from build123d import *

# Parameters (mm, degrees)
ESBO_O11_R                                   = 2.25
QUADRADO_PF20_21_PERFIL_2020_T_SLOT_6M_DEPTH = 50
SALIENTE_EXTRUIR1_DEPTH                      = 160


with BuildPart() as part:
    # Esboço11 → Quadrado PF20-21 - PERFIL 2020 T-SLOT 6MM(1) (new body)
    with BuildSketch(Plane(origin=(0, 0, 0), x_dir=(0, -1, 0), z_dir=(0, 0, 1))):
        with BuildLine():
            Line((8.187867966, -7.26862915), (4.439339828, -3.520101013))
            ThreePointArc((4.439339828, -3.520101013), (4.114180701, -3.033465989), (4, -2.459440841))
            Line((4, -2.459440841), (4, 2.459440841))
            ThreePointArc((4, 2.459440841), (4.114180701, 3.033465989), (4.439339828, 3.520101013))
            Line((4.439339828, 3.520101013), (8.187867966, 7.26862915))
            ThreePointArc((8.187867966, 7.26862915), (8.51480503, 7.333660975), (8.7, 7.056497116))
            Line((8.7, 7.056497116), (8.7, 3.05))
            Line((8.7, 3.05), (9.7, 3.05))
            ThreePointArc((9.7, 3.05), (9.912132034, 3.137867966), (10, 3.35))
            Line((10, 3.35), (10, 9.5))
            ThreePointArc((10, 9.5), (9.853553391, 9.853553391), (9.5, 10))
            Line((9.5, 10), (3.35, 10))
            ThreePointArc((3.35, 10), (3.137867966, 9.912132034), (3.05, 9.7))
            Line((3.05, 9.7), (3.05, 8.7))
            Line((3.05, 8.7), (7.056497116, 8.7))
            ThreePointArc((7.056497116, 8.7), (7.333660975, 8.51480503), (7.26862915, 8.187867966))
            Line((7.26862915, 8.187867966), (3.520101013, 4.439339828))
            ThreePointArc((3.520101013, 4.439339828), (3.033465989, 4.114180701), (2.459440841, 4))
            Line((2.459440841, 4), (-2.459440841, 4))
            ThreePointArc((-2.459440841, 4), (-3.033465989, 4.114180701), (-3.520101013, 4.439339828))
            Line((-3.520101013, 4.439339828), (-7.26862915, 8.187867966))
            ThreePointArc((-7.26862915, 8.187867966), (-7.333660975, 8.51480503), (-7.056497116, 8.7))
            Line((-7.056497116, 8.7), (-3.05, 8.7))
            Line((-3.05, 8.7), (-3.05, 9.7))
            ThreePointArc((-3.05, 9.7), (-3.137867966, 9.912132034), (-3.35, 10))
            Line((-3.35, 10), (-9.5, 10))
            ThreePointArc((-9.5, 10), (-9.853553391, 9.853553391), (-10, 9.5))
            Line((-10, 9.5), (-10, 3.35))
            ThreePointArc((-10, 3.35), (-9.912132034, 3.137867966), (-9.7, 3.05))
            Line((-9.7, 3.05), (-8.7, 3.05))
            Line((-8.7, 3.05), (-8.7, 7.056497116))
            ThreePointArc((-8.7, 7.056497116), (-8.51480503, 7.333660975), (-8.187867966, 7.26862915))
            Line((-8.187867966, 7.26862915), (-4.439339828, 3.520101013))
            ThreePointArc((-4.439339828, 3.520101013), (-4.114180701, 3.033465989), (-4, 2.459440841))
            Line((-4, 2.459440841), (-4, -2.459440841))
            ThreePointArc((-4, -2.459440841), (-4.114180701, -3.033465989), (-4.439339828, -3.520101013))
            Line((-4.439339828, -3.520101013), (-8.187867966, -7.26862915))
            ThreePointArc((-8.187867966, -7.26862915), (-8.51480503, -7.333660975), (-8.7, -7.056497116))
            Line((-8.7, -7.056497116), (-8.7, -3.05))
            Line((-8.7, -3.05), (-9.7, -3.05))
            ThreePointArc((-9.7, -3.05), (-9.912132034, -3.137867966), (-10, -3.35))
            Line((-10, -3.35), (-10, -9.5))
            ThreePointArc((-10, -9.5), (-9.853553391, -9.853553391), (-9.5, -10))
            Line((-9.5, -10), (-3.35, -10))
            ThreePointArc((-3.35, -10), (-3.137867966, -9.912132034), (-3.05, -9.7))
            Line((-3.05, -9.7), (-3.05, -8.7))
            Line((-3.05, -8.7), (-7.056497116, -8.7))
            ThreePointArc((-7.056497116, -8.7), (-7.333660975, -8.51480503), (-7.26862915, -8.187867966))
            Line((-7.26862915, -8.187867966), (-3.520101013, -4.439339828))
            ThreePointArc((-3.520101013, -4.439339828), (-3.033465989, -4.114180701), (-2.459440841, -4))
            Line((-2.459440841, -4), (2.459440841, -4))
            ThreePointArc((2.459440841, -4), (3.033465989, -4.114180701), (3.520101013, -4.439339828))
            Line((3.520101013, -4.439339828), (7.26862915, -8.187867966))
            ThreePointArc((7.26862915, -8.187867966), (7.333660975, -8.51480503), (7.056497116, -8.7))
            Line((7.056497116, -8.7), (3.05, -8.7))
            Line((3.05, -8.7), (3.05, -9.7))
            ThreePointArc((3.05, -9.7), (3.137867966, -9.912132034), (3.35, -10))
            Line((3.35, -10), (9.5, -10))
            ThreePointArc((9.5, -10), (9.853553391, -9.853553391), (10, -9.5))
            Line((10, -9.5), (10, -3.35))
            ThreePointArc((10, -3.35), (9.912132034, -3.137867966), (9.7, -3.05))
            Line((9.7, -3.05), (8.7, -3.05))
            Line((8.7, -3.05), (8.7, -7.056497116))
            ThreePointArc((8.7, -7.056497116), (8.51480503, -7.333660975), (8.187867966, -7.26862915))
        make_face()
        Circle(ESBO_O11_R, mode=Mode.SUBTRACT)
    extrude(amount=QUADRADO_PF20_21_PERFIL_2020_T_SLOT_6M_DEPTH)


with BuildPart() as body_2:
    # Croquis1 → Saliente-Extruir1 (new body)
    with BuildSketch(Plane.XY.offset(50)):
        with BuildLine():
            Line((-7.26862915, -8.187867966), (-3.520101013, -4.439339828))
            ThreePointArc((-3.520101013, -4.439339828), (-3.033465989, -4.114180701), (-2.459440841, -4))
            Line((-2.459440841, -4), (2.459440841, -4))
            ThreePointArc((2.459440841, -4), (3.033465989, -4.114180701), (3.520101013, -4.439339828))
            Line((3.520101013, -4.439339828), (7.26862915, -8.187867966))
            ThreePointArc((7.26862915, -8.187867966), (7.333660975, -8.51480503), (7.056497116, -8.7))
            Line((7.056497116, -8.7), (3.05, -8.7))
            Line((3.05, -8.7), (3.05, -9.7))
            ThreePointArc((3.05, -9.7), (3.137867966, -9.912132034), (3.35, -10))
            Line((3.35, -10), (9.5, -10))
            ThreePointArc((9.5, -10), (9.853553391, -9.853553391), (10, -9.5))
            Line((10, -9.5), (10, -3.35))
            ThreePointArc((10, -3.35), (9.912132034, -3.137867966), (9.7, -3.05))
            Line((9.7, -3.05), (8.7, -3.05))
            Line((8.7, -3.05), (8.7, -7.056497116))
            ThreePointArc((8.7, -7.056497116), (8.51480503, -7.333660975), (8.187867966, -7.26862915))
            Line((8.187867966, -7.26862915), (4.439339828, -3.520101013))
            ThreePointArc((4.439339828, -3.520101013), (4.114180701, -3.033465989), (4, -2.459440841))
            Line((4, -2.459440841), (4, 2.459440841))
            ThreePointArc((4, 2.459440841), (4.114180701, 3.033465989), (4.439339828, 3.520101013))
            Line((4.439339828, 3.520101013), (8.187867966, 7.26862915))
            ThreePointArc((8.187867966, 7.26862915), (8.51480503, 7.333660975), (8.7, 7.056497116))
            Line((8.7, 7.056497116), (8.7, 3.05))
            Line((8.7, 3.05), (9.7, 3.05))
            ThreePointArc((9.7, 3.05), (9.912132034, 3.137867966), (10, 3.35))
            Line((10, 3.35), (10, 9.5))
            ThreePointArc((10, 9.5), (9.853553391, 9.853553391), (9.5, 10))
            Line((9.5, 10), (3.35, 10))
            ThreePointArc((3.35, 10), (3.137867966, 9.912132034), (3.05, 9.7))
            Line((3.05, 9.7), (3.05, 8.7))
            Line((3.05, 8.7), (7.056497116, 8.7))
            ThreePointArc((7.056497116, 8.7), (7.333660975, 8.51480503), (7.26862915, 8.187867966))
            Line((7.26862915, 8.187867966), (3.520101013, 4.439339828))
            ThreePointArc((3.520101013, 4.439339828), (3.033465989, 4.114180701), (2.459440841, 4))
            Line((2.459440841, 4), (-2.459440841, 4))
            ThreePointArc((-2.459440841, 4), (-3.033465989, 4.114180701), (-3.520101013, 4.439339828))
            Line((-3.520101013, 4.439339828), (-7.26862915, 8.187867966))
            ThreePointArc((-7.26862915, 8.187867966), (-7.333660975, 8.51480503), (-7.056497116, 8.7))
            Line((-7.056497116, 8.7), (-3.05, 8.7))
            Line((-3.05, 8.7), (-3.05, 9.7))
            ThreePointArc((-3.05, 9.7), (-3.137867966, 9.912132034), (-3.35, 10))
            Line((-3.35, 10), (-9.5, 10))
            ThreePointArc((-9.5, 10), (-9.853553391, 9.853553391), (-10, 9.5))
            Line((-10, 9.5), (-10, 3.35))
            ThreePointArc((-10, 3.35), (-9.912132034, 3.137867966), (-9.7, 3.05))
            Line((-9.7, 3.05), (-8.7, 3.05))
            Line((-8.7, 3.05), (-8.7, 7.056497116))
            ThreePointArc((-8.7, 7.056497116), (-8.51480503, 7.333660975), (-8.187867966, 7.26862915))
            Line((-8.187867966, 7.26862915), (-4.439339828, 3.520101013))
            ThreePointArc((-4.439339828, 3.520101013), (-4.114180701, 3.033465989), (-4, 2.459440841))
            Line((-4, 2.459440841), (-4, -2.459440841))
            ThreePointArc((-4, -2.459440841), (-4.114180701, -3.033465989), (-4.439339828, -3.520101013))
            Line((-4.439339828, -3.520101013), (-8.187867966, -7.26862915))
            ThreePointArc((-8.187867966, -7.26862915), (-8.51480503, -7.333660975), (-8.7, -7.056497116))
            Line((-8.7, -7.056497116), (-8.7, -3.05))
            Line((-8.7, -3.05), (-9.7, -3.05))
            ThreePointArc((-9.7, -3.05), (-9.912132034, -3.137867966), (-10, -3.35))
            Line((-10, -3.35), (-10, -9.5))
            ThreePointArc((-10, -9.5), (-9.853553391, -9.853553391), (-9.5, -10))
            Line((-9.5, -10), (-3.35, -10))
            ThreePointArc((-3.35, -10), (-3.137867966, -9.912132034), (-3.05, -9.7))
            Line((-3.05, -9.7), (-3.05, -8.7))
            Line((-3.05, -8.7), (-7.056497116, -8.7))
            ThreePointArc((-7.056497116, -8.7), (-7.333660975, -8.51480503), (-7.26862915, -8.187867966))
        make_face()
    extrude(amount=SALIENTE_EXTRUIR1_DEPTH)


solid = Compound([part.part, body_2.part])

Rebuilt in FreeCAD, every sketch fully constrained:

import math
import FreeCAD as App
import Part
import Sketcher
Q = App.Units.Quantity

doc = App.newDocument("Part")
body = doc.addObject("PartDesign::Body", "Body")

sketch1 = body.newObject("Sketcher::SketchObject", "Sketch")
sketch1.AttachmentSupport = (doc.getObject("XY_Plane"), [""])
sketch1.MapMode = "FlatFace"
sketch1.addGeometry(Part.LineSegment(App.Vector(-7.27, -8.19, 0), App.Vector(-3.52, -4.44, 0)), False)
sketch1.addGeometry(Part.ArcOfCircle(Part.Circle(App.Vector(-2.46, -5.5, 0), App.Vector(0, 0, 1), 1.5), math.radians(90), math.radians(135)), False)
sketch1.addGeometry(Part.LineSegment(App.Vector(-2.46, -4, 0), App.Vector(2.46, -4, 0)), False)
sketch1.addGeometry(Part.ArcOfCircle(Part.Circle(App.Vector(2.46, -5.5, 0), App.Vector(0, 0, 1), 1.5), math.radians(45), math.radians(90)), False)
sketch1.addGeometry(Part.LineSegment(App.Vector(3.52, -4.44, 0), App.Vector(7.27, -8.19, 0)), False)
sketch1.addGeometry(Part.ArcOfCircle(Part.Circle(App.Vector(7.06, -8.4, 0), App.Vector(0, 0, 1), 0.3), math.radians(-90), math.radians(45)), False)
sketch1.addGeometry(Part.LineSegment(App.Vector(7.06, -8.7, 0), App.Vector(3.05, -8.7, 0)), False)
sketch1.addGeometry(Part.LineSegment(App.Vector(3.05, -8.7, 0), App.Vector(3.05, -9.7, 0)), False)
sketch1.addGeometry(Part.ArcOfCircle(Part.Circle(App.Vector(3.35, -9.7, 0), App.Vector(0, 0, 1), 0.3), math.radians(-180), math.radians(-90)), False)
sketch1.addGeometry(Part.LineSegment(App.Vector(3.35, -10, 0), App.Vector(9.5, -10, 0)), False)
sketch1.addGeometry(Part.ArcOfCircle(Part.Circle(App.Vector(9.5, -9.5, 0), App.Vector(0, 0, 1), 0.5), math.radians(-90), math.radians(0)), False)
sketch1.addGeometry(Part.LineSegment(App.Vector(10, -9.5, 0), App.Vector(10, -3.35, 0)), False)
sketch1.addGeometry(Part.ArcOfCircle(Part.Circle(App.Vector(9.7, -3.35, 0), App.Vector(0, 0, 1), 0.3), math.radians(0), math.radians(90)), False)
sketch1.addGeometry(Part.LineSegment(App.Vector(9.7, -3.05, 0), App.Vector(8.7, -3.05, 0)), False)
sketch1.addGeometry(Part.LineSegment(App.Vector(8.7, -3.05, 0), App.Vector(8.7, -7.06, 0)), False)
sketch1.addGeometry(Part.ArcOfCircle(Part.Circle(App.Vector(8.4, -7.06, 0), App.Vector(0, 0, 1), 0.3), math.radians(-135), math.radians(0)), False)
sketch1.addGeometry(Part.LineSegment(App.Vector(8.19, -7.27, 0), App.Vector(4.44, -3.52, 0)), False)
sketch1.addGeometry(Part.ArcOfCircle(Part.Circle(App.Vector(5.5, -2.46, 0), App.Vector(0, 0, 1), 1.5), math.radians(180), math.radians(225)), False)
sketch1.addGeometry(Part.LineSegment(App.Vector(4, -2.46, 0), App.Vector(4, 2.46, 0)), False)
sketch1.addGeometry(Part.ArcOfCircle(Part.Circle(App.Vector(5.5, 2.46, 0), App.Vector(0, 0, 1), 1.5), math.radians(135), math.radians(180)), False)
sketch1.addGeometry(Part.LineSegment(App.Vector(4.44, 3.52, 0), App.Vector(8.19, 7.27, 0)), False)
sketch1.addGeometry(Part.ArcOfCircle(Part.Circle(App.Vector(8.4, 7.06, 0), App.Vector(0, 0, 1), 0.3), math.radians(0), math.radians(135)), False)
sketch1.addGeometry(Part.LineSegment(App.Vector(8.7, 7.06, 0), App.Vector(8.7, 3.05, 0)), False)
sketch1.addGeometry(Part.LineSegment(App.Vector(8.7, 3.05, 0), App.Vector(9.7, 3.05, 0)), False)
sketch1.addGeometry(Part.ArcOfCircle(Part.Circle(App.Vector(9.7, 3.35, 0), App.Vector(0, 0, 1), 0.3), math.radians(-90), math.radians(0)), False)
sketch1.addGeometry(Part.LineSegment(App.Vector(10, 3.35, 0), App.Vector(10, 9.5, 0)), False)
sketch1.addGeometry(Part.ArcOfCircle(Part.Circle(App.Vector(9.5, 9.5, 0), App.Vector(0, 0, 1), 0.5), math.radians(0), math.radians(90)), False)
sketch1.addGeometry(Part.LineSegment(App.Vector(9.5, 10, 0), App.Vector(3.35, 10, 0)), False)
sketch1.addGeometry(Part.ArcOfCircle(Part.Circle(App.Vector(3.35, 9.7, 0), App.Vector(0, 0, 1), 0.3), math.radians(90), math.radians(180)), False)
sketch1.addGeometry(Part.LineSegment(App.Vector(3.05, 9.7, 0), App.Vector(3.05, 8.7, 0)), False)
sketch1.addGeometry(Part.LineSegment(App.Vector(3.05, 8.7, 0), App.Vector(7.06, 8.7, 0)), False)
sketch1.addGeometry(Part.ArcOfCircle(Part.Circle(App.Vector(7.06, 8.4, 0), App.Vector(0, 0, 1), 0.3), math.radians(-45), math.radians(90)), False)
sketch1.addGeometry(Part.LineSegment(App.Vector(7.27, 8.19, 0), App.Vector(3.52, 4.44, 0)), False)
sketch1.addGeometry(Part.ArcOfCircle(Part.Circle(App.Vector(2.46, 5.5, 0), App.Vector(0, 0, 1), 1.5), math.radians(-90), math.radians(-45)), False)
sketch1.addGeometry(Part.LineSegment(App.Vector(2.46, 4, 0), App.Vector(-2.46, 4, 0)), False)
sketch1.addGeometry(Part.ArcOfCircle(Part.Circle(App.Vector(-2.46, 5.5, 0), App.Vector(0, 0, 1), 1.5), math.radians(-135), math.radians(-90)), False)
sketch1.addGeometry(Part.LineSegment(App.Vector(-3.52, 4.44, 0), App.Vector(-7.27, 8.19, 0)), False)
sketch1.addGeometry(Part.ArcOfCircle(Part.Circle(App.Vector(-7.06, 8.4, 0), App.Vector(0, 0, 1), 0.3), math.radians(90), math.radians(225)), False)
sketch1.addGeometry(Part.LineSegment(App.Vector(-7.06, 8.7, 0), App.Vector(-3.05, 8.7, 0)), False)
sketch1.addGeometry(Part.LineSegment(App.Vector(-3.05, 8.7, 0), App.Vector(-3.05, 9.7, 0)), False)
sketch1.addGeometry(Part.ArcOfCircle(Part.Circle(App.Vector(-3.35, 9.7, 0), App.Vector(0, 0, 1), 0.3), math.radians(0), math.radians(90)), False)
sketch1.addGeometry(Part.LineSegment(App.Vector(-3.35, 10, 0), App.Vector(-9.5, 10, 0)), False)
sketch1.addGeometry(Part.ArcOfCircle(Part.Circle(App.Vector(-9.5, 9.5, 0), App.Vector(0, 0, 1), 0.5), math.radians(90), math.radians(180)), False)
sketch1.addGeometry(Part.LineSegment(App.Vector(-10, 9.5, 0), App.Vector(-10, 3.35, 0)), False)
sketch1.addGeometry(Part.ArcOfCircle(Part.Circle(App.Vector(-9.7, 3.35, 0), App.Vector(0, 0, 1), 0.3), math.radians(-180), math.radians(-90)), False)
sketch1.addGeometry(Part.LineSegment(App.Vector(-9.7, 3.05, 0), App.Vector(-8.7, 3.05, 0)), False)
sketch1.addGeometry(Part.LineSegment(App.Vector(-8.7, 3.05, 0), App.Vector(-8.7, 7.06, 0)), False)
sketch1.addGeometry(Part.ArcOfCircle(Part.Circle(App.Vector(-8.4, 7.06, 0), App.Vector(0, 0, 1), 0.3), math.radians(45), math.radians(180)), False)
sketch1.addGeometry(Part.LineSegment(App.Vector(-8.19, 7.27, 0), App.Vector(-4.44, 3.52, 0)), False)
sketch1.addGeometry(Part.ArcOfCircle(Part.Circle(App.Vector(-5.5, 2.46, 0), App.Vector(0, 0, 1), 1.5), math.radians(0), math.radians(45)), False)
sketch1.addGeometry(Part.LineSegment(App.Vector(-4, 2.46, 0), App.Vector(-4, -2.46, 0)), False)
sketch1.addGeometry(Part.ArcOfCircle(Part.Circle(App.Vector(-5.5, -2.46, 0), App.Vector(0, 0, 1), 1.5), math.radians(-45), math.radians(0)), False)
sketch1.addGeometry(Part.LineSegment(App.Vector(-4.44, -3.52, 0), App.Vector(-8.19, -7.27, 0)), False)
sketch1.addGeometry(Part.ArcOfCircle(Part.Circle(App.Vector(-8.4, -7.06, 0), App.Vector(0, 0, 1), 0.3), math.radians(-180), math.radians(-45)), False)
sketch1.addGeometry(Part.LineSegment(App.Vector(-8.7, -7.06, 0), App.Vector(-8.7, -3.05, 0)), False)
sketch1.addGeometry(Part.LineSegment(App.Vector(-8.7, -3.05, 0), App.Vector(-9.7, -3.05, 0)), False)
sketch1.addGeometry(Part.ArcOfCircle(Part.Circle(App.Vector(-9.7, -3.35, 0), App.Vector(0, 0, 1), 0.3), math.radians(90), math.radians(180)), False)
sketch1.addGeometry(Part.LineSegment(App.Vector(-10, -3.35, 0), App.Vector(-10, -9.5, 0)), False)
sketch1.addGeometry(Part.ArcOfCircle(Part.Circle(App.Vector(-9.5, -9.5, 0), App.Vector(0, 0, 1), 0.5), math.radians(180), math.radians(270)), False)
sketch1.addGeometry(Part.LineSegment(App.Vector(-9.5, -10, 0), App.Vector(-3.35, -10, 0)), False)
sketch1.addGeometry(Part.ArcOfCircle(Part.Circle(App.Vector(-3.35, -9.7, 0), App.Vector(0, 0, 1), 0.3), math.radians(-90), math.radians(0)), False)
sketch1.addGeometry(Part.LineSegment(App.Vector(-3.05, -9.7, 0), App.Vector(-3.05, -8.7, 0)), False)
sketch1.addGeometry(Part.LineSegment(App.Vector(-3.05, -8.7, 0), App.Vector(-7.06, -8.7, 0)), False)
sketch1.addGeometry(Part.ArcOfCircle(Part.Circle(App.Vector(-7.06, -8.4, 0), App.Vector(0, 0, 1), 0.3), math.radians(135), math.radians(270)), False)
sketch1.addGeometry(Part.Circle(App.Vector(0, 0, 0), App.Vector(0, 0, 1), 2.25), False)
sketch1.addConstraint(Sketcher.Constraint("Tangent", 0, 2, 1, 2))
sketch1.addConstraint(Sketcher.Constraint("Tangent", 1, 1, 2, 1))
sketch1.addConstraint(Sketcher.Constraint("Tangent", 2, 2, 3, 2))
sketch1.addConstraint(Sketcher.Constraint("Tangent", 3, 1, 4, 1))
sketch1.addConstraint(Sketcher.Constraint("Tangent", 4, 2, 5, 2))
sketch1.addConstraint(Sketcher.Constraint("Tangent", 5, 1, 6, 1))
sketch1.addConstraint(Sketcher.Constraint("Coincident", 6, 2, 7, 1))
sketch1.addConstraint(Sketcher.Constraint("Tangent", 7, 2, 8, 1))
sketch1.addConstraint(Sketcher.Constraint("Tangent", 8, 2, 9, 1))
sketch1.addConstraint(Sketcher.Constraint("Tangent", 9, 2, 10, 1))
sketch1.addConstraint(Sketcher.Constraint("Tangent", 10, 2, 11, 1))
sketch1.addConstraint(Sketcher.Constraint("Tangent", 11, 2, 12, 1))
sketch1.addConstraint(Sketcher.Constraint("Tangent", 12, 2, 13, 1))
sketch1.addConstraint(Sketcher.Constraint("Coincident", 13, 2, 14, 1))
sketch1.addConstraint(Sketcher.Constraint("Tangent", 14, 2, 15, 2))
sketch1.addConstraint(Sketcher.Constraint("Tangent", 15, 1, 16, 1))
sketch1.addConstraint(Sketcher.Constraint("Tangent", 16, 2, 17, 2))
sketch1.addConstraint(Sketcher.Constraint("Tangent", 17, 1, 18, 1))
sketch1.addConstraint(Sketcher.Constraint("Tangent", 18, 2, 19, 2))
sketch1.addConstraint(Sketcher.Constraint("Tangent", 19, 1, 20, 1))
sketch1.addConstraint(Sketcher.Constraint("Tangent", 20, 2, 21, 2))
sketch1.addConstraint(Sketcher.Constraint("Tangent", 21, 1, 22, 1))
sketch1.addConstraint(Sketcher.Constraint("Coincident", 22, 2, 23, 1))
sketch1.addConstraint(Sketcher.Constraint("Tangent", 23, 2, 24, 1))
sketch1.addConstraint(Sketcher.Constraint("Tangent", 24, 2, 25, 1))
sketch1.addConstraint(Sketcher.Constraint("Tangent", 25, 2, 26, 1))
sketch1.addConstraint(Sketcher.Constraint("Tangent", 26, 2, 27, 1))
sketch1.addConstraint(Sketcher.Constraint("Tangent", 27, 2, 28, 1))
sketch1.addConstraint(Sketcher.Constraint("Tangent", 28, 2, 29, 1))
sketch1.addConstraint(Sketcher.Constraint("Coincident", 29, 2, 30, 1))
sketch1.addConstraint(Sketcher.Constraint("Tangent", 30, 2, 31, 2))
sketch1.addConstraint(Sketcher.Constraint("Tangent", 31, 1, 32, 1))
sketch1.addConstraint(Sketcher.Constraint("Tangent", 32, 2, 33, 2))
sketch1.addConstraint(Sketcher.Constraint("Tangent", 33, 1, 34, 1))
sketch1.addConstraint(Sketcher.Constraint("Tangent", 34, 2, 35, 2))
sketch1.addConstraint(Sketcher.Constraint("Tangent", 35, 1, 36, 1))
sketch1.addConstraint(Sketcher.Constraint("Tangent", 36, 2, 37, 2))
sketch1.addConstraint(Sketcher.Constraint("Tangent", 37, 1, 38, 1))
sketch1.addConstraint(Sketcher.Constraint("Coincident", 38, 2, 39, 1))
sketch1.addConstraint(Sketcher.Constraint("Tangent", 39, 2, 40, 1))
sketch1.addConstraint(Sketcher.Constraint("Tangent", 40, 2, 41, 1))
sketch1.addConstraint(Sketcher.Constraint("Tangent", 41, 2, 42, 1))
sketch1.addConstraint(Sketcher.Constraint("Tangent", 42, 2, 43, 1))
sketch1.addConstraint(Sketcher.Constraint("Tangent", 43, 2, 44, 1))
sketch1.addConstraint(Sketcher.Constraint("Tangent", 44, 2, 45, 1))
sketch1.addConstraint(Sketcher.Constraint("Coincident", 45, 2, 46, 1))
sketch1.addConstraint(Sketcher.Constraint("Tangent", 46, 2, 47, 2))
sketch1.addConstraint(Sketcher.Constraint("Tangent", 47, 1, 48, 1))
sketch1.addConstraint(Sketcher.Constraint("Tangent", 48, 2, 49, 2))
sketch1.addConstraint(Sketcher.Constraint("Tangent", 49, 1, 50, 1))
sketch1.addConstraint(Sketcher.Constraint("Tangent", 50, 2, 51, 2))
sketch1.addConstraint(Sketcher.Constraint("Tangent", 51, 1, 52, 1))
sketch1.addConstraint(Sketcher.Constraint("Tangent", 52, 2, 53, 2))
sketch1.addConstraint(Sketcher.Constraint("Tangent", 53, 1, 54, 1))
sketch1.addConstraint(Sketcher.Constraint("Coincident", 54, 2, 55, 1))
sketch1.addConstraint(Sketcher.Constraint("Tangent", 55, 2, 56, 1))
sketch1.addConstraint(Sketcher.Constraint("Tangent", 56, 2, 57, 1))
sketch1.addConstraint(Sketcher.Constraint("Tangent", 57, 2, 58, 1))
sketch1.addConstraint(Sketcher.Constraint("Tangent", 58, 2, 59, 1))
sketch1.addConstraint(Sketcher.Constraint("Tangent", 59, 2, 60, 1))
sketch1.addConstraint(Sketcher.Constraint("Tangent", 60, 2, 61, 1))
sketch1.addConstraint(Sketcher.Constraint("Coincident", 61, 2, 62, 1))
sketch1.addConstraint(Sketcher.Constraint("Tangent", 62, 2, 63, 2))
sketch1.addConstraint(Sketcher.Constraint("Tangent", 63, 1, 0, 1))
sketch1.addConstraint(Sketcher.Constraint("Horizontal", 2))
sketch1.addConstraint(Sketcher.Constraint("Horizontal", 6))
sketch1.addConstraint(Sketcher.Constraint("Vertical", 7))
sketch1.addConstraint(Sketcher.Constraint("Horizontal", 9))
sketch1.addConstraint(Sketcher.Constraint("Vertical", 11))
sketch1.addConstraint(Sketcher.Constraint("Horizontal", 13))
sketch1.addConstraint(Sketcher.Constraint("Vertical", 14))
sketch1.addConstraint(Sketcher.Constraint("Vertical", 18))
sketch1.addConstraint(Sketcher.Constraint("Vertical", 22))
sketch1.addConstraint(Sketcher.Constraint("Horizontal", 23))
sketch1.addConstraint(Sketcher.Constraint("Vertical", 25))
sketch1.addConstraint(Sketcher.Constraint("Horizontal", 27))
sketch1.addConstraint(Sketcher.Constraint("Vertical", 29))
sketch1.addConstraint(Sketcher.Constraint("Horizontal", 30))
sketch1.addConstraint(Sketcher.Constraint("Horizontal", 34))
sketch1.addConstraint(Sketcher.Constraint("Horizontal", 38))
sketch1.addConstraint(Sketcher.Constraint("Vertical", 39))
sketch1.addConstraint(Sketcher.Constraint("Horizontal", 41))
sketch1.addConstraint(Sketcher.Constraint("Vertical", 43))
sketch1.addConstraint(Sketcher.Constraint("Horizontal", 45))
sketch1.addConstraint(Sketcher.Constraint("Vertical", 46))
sketch1.addConstraint(Sketcher.Constraint("Vertical", 50))
sketch1.addConstraint(Sketcher.Constraint("Vertical", 54))
sketch1.addConstraint(Sketcher.Constraint("Horizontal", 55))
sketch1.addConstraint(Sketcher.Constraint("Vertical", 57))
sketch1.addConstraint(Sketcher.Constraint("Horizontal", 59))
sketch1.addConstraint(Sketcher.Constraint("Vertical", 61))
sketch1.addConstraint(Sketcher.Constraint("Horizontal", 62))
sketch1.addConstraint(Sketcher.Constraint("Coincident", 64, 3, -1, 1))
sketch1.addConstraint(Sketcher.Constraint("Equal", 1, 3))
sketch1.addConstraint(Sketcher.Constraint("Equal", 5, 8))
sketch1.addConstraint(Sketcher.Constraint("Equal", 8, 12))
sketch1.addConstraint(Sketcher.Constraint("Equal", 12, 15))
sketch1.addConstraint(Sketcher.Constraint("Equal", 3, 17))
sketch1.addConstraint(Sketcher.Constraint("Equal", 17, 19))
sketch1.addConstraint(Sketcher.Constraint("Equal", 15, 21))
sketch1.addConstraint(Sketcher.Constraint("Equal", 21, 24))
sketch1.addConstraint(Sketcher.Constraint("Equal", 10, 26))
sketch1.addConstraint(Sketcher.Constraint("Equal", 24, 28))
sketch1.addConstraint(Sketcher.Constraint("Equal", 28, 31))
sketch1.addConstraint(Sketcher.Constraint("Equal", 19, 33))
sketch1.addConstraint(Sketcher.Constraint("Equal", 33, 35))
sketch1.addConstraint(Sketcher.Constraint("Equal", 31, 37))
sketch1.addConstraint(Sketcher.Constraint("Equal", 37, 40))
sketch1.addConstraint(Sketcher.Constraint("Equal", 26, 42))
sketch1.addConstraint(Sketcher.Constraint("Equal", 40, 44))
sketch1.addConstraint(Sketcher.Constraint("Equal", 44, 47))
sketch1.addConstraint(Sketcher.Constraint("Equal", 35, 49))
sketch1.addConstraint(Sketcher.Constraint("Equal", 49, 51))
sketch1.addConstraint(Sketcher.Constraint("Equal", 47, 53))
sketch1.addConstraint(Sketcher.Constraint("Equal", 53, 56))
sketch1.addConstraint(Sketcher.Constraint("Equal", 42, 58))
sketch1.addConstraint(Sketcher.Constraint("Equal", 56, 60))
sketch1.addConstraint(Sketcher.Constraint("Equal", 60, 63))
sketch1.addConstraint(Sketcher.Constraint("Symmetric", 1, 3, 33, 3, -1, 1))
sketch1.addConstraint(Sketcher.Constraint("Symmetric", 5, 3, 37, 3, -1, 1))
sketch1.addConstraint(Sketcher.Constraint("Symmetric", 8, 3, 40, 3, -1, 1))
sketch1.addConstraint(Sketcher.Constraint("Symmetric", 12, 3, 44, 3, -1, 1))
sketch1.addConstraint(Sketcher.Constraint("Symmetric", 15, 3, 47, 3, -1, 1))
sketch1.addConstraint(Sketcher.Constraint("Symmetric", 17, 3, 49, 3, -1, 1))
sketch1.addConstraint(Sketcher.Constraint("Symmetric", 21, 3, 53, 3, -1, 1))
sketch1.addConstraint(Sketcher.Constraint("Symmetric", 24, 3, 56, 3, -1, 1))
sketch1.addConstraint(Sketcher.Constraint("Symmetric", 28, 3, 60, 3, -1, 1))
sketch1.addConstraint(Sketcher.Constraint("Symmetric", 31, 3, 63, 3, -1, 1))
sketch1.addConstraint(Sketcher.Constraint("Symmetric", 31, 3, 37, 3, -2))
sketch1.addConstraint(Sketcher.Constraint("Symmetric", 28, 3, 40, 3, -2))
sketch1.addConstraint(Sketcher.Constraint("Symmetric", 24, 3, 44, 3, -2))
sketch1.addConstraint(Sketcher.Constraint("Symmetric", 21, 3, 47, 3, -2))
sketch1.addConstraint(Sketcher.Constraint("Perpendicular", 0, 4))
sketch1.addConstraint(Sketcher.Constraint("Parallel", 4, 16))
sketch1.addConstraint(Sketcher.Constraint("Perpendicular", 16, 20))
sketch1.addConstraint(Sketcher.Constraint("Perpendicular", 32, 36))
sketch1.addConstraint(Sketcher.Constraint("Perpendicular", 48, 52))
sketch1.addConstraint(Sketcher.Constraint("Horizontal", 19, 3, 49, 3))
sketch1.addConstraint(Sketcher.Constraint("Equal", 55, 7))
sketch1.addConstraint(Sketcher.Constraint("Equal", 59, 11))
sketch1.addConstraint(Sketcher.Constraint("Equal", 62, 14))
sketch1.addConstraint(Sketcher.Constraint("Equal", 34, 18))
sketch1.addConstraint(Sketcher.Constraint("Equal", 4, 16))
sketch1.addConstraint(Sketcher.Constraint("Diameter", 64, Q("4.5 mm")))
sketch1.addConstraint(Sketcher.Constraint("Radius", 1, Q("1.5 mm")))
sketch1.addConstraint(Sketcher.Constraint("Radius", 5, Q("0.3 mm")))
sketch1.addConstraint(Sketcher.Constraint("Radius", 10, Q("0.5 mm")))
sketch1.addConstraint(Sketcher.Constraint("DistanceX", 13, 2, 13, 1, Q("1 mm")))
sketch1.addConstraint(Sketcher.Constraint("DistanceY", 1, 1, -1, 1, Q("4 mm")))
sketch1.addConstraint(Sketcher.Constraint("DistanceY", 8, 2, -1, 1, Q("10 mm")))
sketch1.addConstraint(Sketcher.Constraint("DistanceX", 9, 1, 9, 2, Q("6.15 mm")))
sketch1.addConstraint(Sketcher.Constraint("DistanceX", 2, 1, 2, 2, Q("4.918882 mm")))
pad1 = body.newObject("PartDesign::Pad", "Pad")
pad1.Profile = sketch1
pad1.Length = 50
body2 = doc.addObject("PartDesign::Body", "Body001")

sketch2 = body2.newObject("Sketcher::SketchObject", "Sketch001")
sketch2.AttachmentSupport = (doc.getObject("XY_Plane001"), [""])
sketch2.MapMode = "FlatFace"
sketch2.AttachmentOffset = App.Placement(App.Vector(0, 0, 50), App.Rotation())
sketch2.addGeometry(Part.LineSegment(App.Vector(-7.27, -8.19, 0), App.Vector(-3.52, -4.44, 0)), False)
sketch2.addGeometry(Part.ArcOfCircle(Part.Circle(App.Vector(-2.46, -5.5, 0), App.Vector(0, 0, 1), 1.5), math.radians(90), math.radians(135)), False)
sketch2.addGeometry(Part.LineSegment(App.Vector(-2.46, -4, 0), App.Vector(2.46, -4, 0)), False)
sketch2.addGeometry(Part.ArcOfCircle(Part.Circle(App.Vector(2.46, -5.5, 0), App.Vector(0, 0, 1), 1.5), math.radians(45), math.radians(90)), False)
sketch2.addGeometry(Part.LineSegment(App.Vector(3.52, -4.44, 0), App.Vector(7.27, -8.19, 0)), False)
sketch2.addGeometry(Part.ArcOfCircle(Part.Circle(App.Vector(7.06, -8.4, 0), App.Vector(0, 0, 1), 0.3), math.radians(-90), math.radians(45)), False)
sketch2.addGeometry(Part.LineSegment(App.Vector(7.06, -8.7, 0), App.Vector(3.05, -8.7, 0)), False)
sketch2.addGeometry(Part.LineSegment(App.Vector(3.05, -8.7, 0), App.Vector(3.05, -9.7, 0)), False)
sketch2.addGeometry(Part.ArcOfCircle(Part.Circle(App.Vector(3.35, -9.7, 0), App.Vector(0, 0, 1), 0.3), math.radians(-180), math.radians(-90)), False)
sketch2.addGeometry(Part.LineSegment(App.Vector(3.35, -10, 0), App.Vector(9.5, -10, 0)), False)
sketch2.addGeometry(Part.ArcOfCircle(Part.Circle(App.Vector(9.5, -9.5, 0), App.Vector(0, 0, 1), 0.5), math.radians(-90), math.radians(0)), False)
sketch2.addGeometry(Part.LineSegment(App.Vector(10, -9.5, 0), App.Vector(10, -3.35, 0)), False)
sketch2.addGeometry(Part.ArcOfCircle(Part.Circle(App.Vector(9.7, -3.35, 0), App.Vector(0, 0, 1), 0.3), math.radians(0), math.radians(90)), False)
sketch2.addGeometry(Part.LineSegment(App.Vector(9.7, -3.05, 0), App.Vector(8.7, -3.05, 0)), False)
sketch2.addGeometry(Part.LineSegment(App.Vector(8.7, -3.05, 0), App.Vector(8.7, -7.06, 0)), False)
sketch2.addGeometry(Part.ArcOfCircle(Part.Circle(App.Vector(8.4, -7.06, 0), App.Vector(0, 0, 1), 0.3), math.radians(-135), math.radians(0)), False)
sketch2.addGeometry(Part.LineSegment(App.Vector(8.19, -7.27, 0), App.Vector(4.44, -3.52, 0)), False)
sketch2.addGeometry(Part.ArcOfCircle(Part.Circle(App.Vector(5.5, -2.46, 0), App.Vector(0, 0, 1), 1.5), math.radians(180), math.radians(225)), False)
sketch2.addGeometry(Part.LineSegment(App.Vector(4, -2.46, 0), App.Vector(4, 2.46, 0)), False)
sketch2.addGeometry(Part.ArcOfCircle(Part.Circle(App.Vector(5.5, 2.46, 0), App.Vector(0, 0, 1), 1.5), math.radians(135), math.radians(180)), False)
sketch2.addGeometry(Part.LineSegment(App.Vector(4.44, 3.52, 0), App.Vector(8.19, 7.27, 0)), False)
sketch2.addGeometry(Part.ArcOfCircle(Part.Circle(App.Vector(8.4, 7.06, 0), App.Vector(0, 0, 1), 0.3), math.radians(0), math.radians(135)), False)
sketch2.addGeometry(Part.LineSegment(App.Vector(8.7, 7.06, 0), App.Vector(8.7, 3.05, 0)), False)
sketch2.addGeometry(Part.LineSegment(App.Vector(8.7, 3.05, 0), App.Vector(9.7, 3.05, 0)), False)
sketch2.addGeometry(Part.ArcOfCircle(Part.Circle(App.Vector(9.7, 3.35, 0), App.Vector(0, 0, 1), 0.3), math.radians(-90), math.radians(0)), False)
sketch2.addGeometry(Part.LineSegment(App.Vector(10, 3.35, 0), App.Vector(10, 9.5, 0)), False)
sketch2.addGeometry(Part.ArcOfCircle(Part.Circle(App.Vector(9.5, 9.5, 0), App.Vector(0, 0, 1), 0.5), math.radians(0), math.radians(90)), False)
sketch2.addGeometry(Part.LineSegment(App.Vector(9.5, 10, 0), App.Vector(3.35, 10, 0)), False)
sketch2.addGeometry(Part.ArcOfCircle(Part.Circle(App.Vector(3.35, 9.7, 0), App.Vector(0, 0, 1), 0.3), math.radians(90), math.radians(180)), False)
sketch2.addGeometry(Part.LineSegment(App.Vector(3.05, 9.7, 0), App.Vector(3.05, 8.7, 0)), False)
sketch2.addGeometry(Part.LineSegment(App.Vector(3.05, 8.7, 0), App.Vector(7.06, 8.7, 0)), False)
sketch2.addGeometry(Part.ArcOfCircle(Part.Circle(App.Vector(7.06, 8.4, 0), App.Vector(0, 0, 1), 0.3), math.radians(-45), math.radians(90)), False)
sketch2.addGeometry(Part.LineSegment(App.Vector(7.27, 8.19, 0), App.Vector(3.52, 4.44, 0)), False)
sketch2.addGeometry(Part.ArcOfCircle(Part.Circle(App.Vector(2.46, 5.5, 0), App.Vector(0, 0, 1), 1.5), math.radians(-90), math.radians(-45)), False)
sketch2.addGeometry(Part.LineSegment(App.Vector(2.46, 4, 0), App.Vector(-2.46, 4, 0)), False)
sketch2.addGeometry(Part.ArcOfCircle(Part.Circle(App.Vector(-2.46, 5.5, 0), App.Vector(0, 0, 1), 1.5), math.radians(-135), math.radians(-90)), False)
sketch2.addGeometry(Part.LineSegment(App.Vector(-3.52, 4.44, 0), App.Vector(-7.27, 8.19, 0)), False)
sketch2.addGeometry(Part.ArcOfCircle(Part.Circle(App.Vector(-7.06, 8.4, 0), App.Vector(0, 0, 1), 0.3), math.radians(90), math.radians(225)), False)
sketch2.addGeometry(Part.LineSegment(App.Vector(-7.06, 8.7, 0), App.Vector(-3.05, 8.7, 0)), False)
sketch2.addGeometry(Part.LineSegment(App.Vector(-3.05, 8.7, 0), App.Vector(-3.05, 9.7, 0)), False)
sketch2.addGeometry(Part.ArcOfCircle(Part.Circle(App.Vector(-3.35, 9.7, 0), App.Vector(0, 0, 1), 0.3), math.radians(0), math.radians(90)), False)
sketch2.addGeometry(Part.LineSegment(App.Vector(-3.35, 10, 0), App.Vector(-9.5, 10, 0)), False)
sketch2.addGeometry(Part.ArcOfCircle(Part.Circle(App.Vector(-9.5, 9.5, 0), App.Vector(0, 0, 1), 0.5), math.radians(90), math.radians(180)), False)
sketch2.addGeometry(Part.LineSegment(App.Vector(-10, 9.5, 0), App.Vector(-10, 3.35, 0)), False)
sketch2.addGeometry(Part.ArcOfCircle(Part.Circle(App.Vector(-9.7, 3.35, 0), App.Vector(0, 0, 1), 0.3), math.radians(-180), math.radians(-90)), False)
sketch2.addGeometry(Part.LineSegment(App.Vector(-9.7, 3.05, 0), App.Vector(-8.7, 3.05, 0)), False)
sketch2.addGeometry(Part.LineSegment(App.Vector(-8.7, 3.05, 0), App.Vector(-8.7, 7.06, 0)), False)
sketch2.addGeometry(Part.ArcOfCircle(Part.Circle(App.Vector(-8.4, 7.06, 0), App.Vector(0, 0, 1), 0.3), math.radians(45), math.radians(180)), False)
sketch2.addGeometry(Part.LineSegment(App.Vector(-8.19, 7.27, 0), App.Vector(-4.44, 3.52, 0)), False)
sketch2.addGeometry(Part.ArcOfCircle(Part.Circle(App.Vector(-5.5, 2.46, 0), App.Vector(0, 0, 1), 1.5), math.radians(0), math.radians(45)), False)
sketch2.addGeometry(Part.LineSegment(App.Vector(-4, 2.46, 0), App.Vector(-4, -2.46, 0)), False)
sketch2.addGeometry(Part.ArcOfCircle(Part.Circle(App.Vector(-5.5, -2.46, 0), App.Vector(0, 0, 1), 1.5), math.radians(-45), math.radians(0)), False)
sketch2.addGeometry(Part.LineSegment(App.Vector(-4.44, -3.52, 0), App.Vector(-8.19, -7.27, 0)), False)
sketch2.addGeometry(Part.ArcOfCircle(Part.Circle(App.Vector(-8.4, -7.06, 0), App.Vector(0, 0, 1), 0.3), math.radians(-180), math.radians(-45)), False)
sketch2.addGeometry(Part.LineSegment(App.Vector(-8.7, -7.06, 0), App.Vector(-8.7, -3.05, 0)), False)
sketch2.addGeometry(Part.LineSegment(App.Vector(-8.7, -3.05, 0), App.Vector(-9.7, -3.05, 0)), False)
sketch2.addGeometry(Part.ArcOfCircle(Part.Circle(App.Vector(-9.7, -3.35, 0), App.Vector(0, 0, 1), 0.3), math.radians(90), math.radians(180)), False)
sketch2.addGeometry(Part.LineSegment(App.Vector(-10, -3.35, 0), App.Vector(-10, -9.5, 0)), False)
sketch2.addGeometry(Part.ArcOfCircle(Part.Circle(App.Vector(-9.5, -9.5, 0), App.Vector(0, 0, 1), 0.5), math.radians(180), math.radians(270)), False)
sketch2.addGeometry(Part.LineSegment(App.Vector(-9.5, -10, 0), App.Vector(-3.35, -10, 0)), False)
sketch2.addGeometry(Part.ArcOfCircle(Part.Circle(App.Vector(-3.35, -9.7, 0), App.Vector(0, 0, 1), 0.3), math.radians(-90), math.radians(0)), False)
sketch2.addGeometry(Part.LineSegment(App.Vector(-3.05, -9.7, 0), App.Vector(-3.05, -8.7, 0)), False)
sketch2.addGeometry(Part.LineSegment(App.Vector(-3.05, -8.7, 0), App.Vector(-7.06, -8.7, 0)), False)
sketch2.addGeometry(Part.ArcOfCircle(Part.Circle(App.Vector(-7.06, -8.4, 0), App.Vector(0, 0, 1), 0.3), math.radians(135), math.radians(270)), False)
sketch2.addConstraint(Sketcher.Constraint("Tangent", 0, 2, 1, 2))
sketch2.addConstraint(Sketcher.Constraint("Tangent", 1, 1, 2, 1))
sketch2.addConstraint(Sketcher.Constraint("Tangent", 2, 2, 3, 2))
sketch2.addConstraint(Sketcher.Constraint("Tangent", 3, 1, 4, 1))
sketch2.addConstraint(Sketcher.Constraint("Tangent", 4, 2, 5, 2))
sketch2.addConstraint(Sketcher.Constraint("Tangent", 5, 1, 6, 1))
sketch2.addConstraint(Sketcher.Constraint("Coincident", 6, 2, 7, 1))
sketch2.addConstraint(Sketcher.Constraint("Tangent", 7, 2, 8, 1))
sketch2.addConstraint(Sketcher.Constraint("Tangent", 8, 2, 9, 1))
sketch2.addConstraint(Sketcher.Constraint("Tangent", 9, 2, 10, 1))
sketch2.addConstraint(Sketcher.Constraint("Tangent", 10, 2, 11, 1))
sketch2.addConstraint(Sketcher.Constraint("Tangent", 11, 2, 12, 1))
sketch2.addConstraint(Sketcher.Constraint("Tangent", 12, 2, 13, 1))
sketch2.addConstraint(Sketcher.Constraint("Coincident", 13, 2, 14, 1))
sketch2.addConstraint(Sketcher.Constraint("Tangent", 14, 2, 15, 2))
sketch2.addConstraint(Sketcher.Constraint("Tangent", 15, 1, 16, 1))
sketch2.addConstraint(Sketcher.Constraint("Tangent", 16, 2, 17, 2))
sketch2.addConstraint(Sketcher.Constraint("Tangent", 17, 1, 18, 1))
sketch2.addConstraint(Sketcher.Constraint("Tangent", 18, 2, 19, 2))
sketch2.addConstraint(Sketcher.Constraint("Tangent", 19, 1, 20, 1))
sketch2.addConstraint(Sketcher.Constraint("Tangent", 20, 2, 21, 2))
sketch2.addConstraint(Sketcher.Constraint("Tangent", 21, 1, 22, 1))
sketch2.addConstraint(Sketcher.Constraint("Coincident", 22, 2, 23, 1))
sketch2.addConstraint(Sketcher.Constraint("Tangent", 23, 2, 24, 1))
sketch2.addConstraint(Sketcher.Constraint("Tangent", 24, 2, 25, 1))
sketch2.addConstraint(Sketcher.Constraint("Tangent", 25, 2, 26, 1))
sketch2.addConstraint(Sketcher.Constraint("Tangent", 26, 2, 27, 1))
sketch2.addConstraint(Sketcher.Constraint("Tangent", 27, 2, 28, 1))
sketch2.addConstraint(Sketcher.Constraint("Tangent", 28, 2, 29, 1))
sketch2.addConstraint(Sketcher.Constraint("Coincident", 29, 2, 30, 1))
sketch2.addConstraint(Sketcher.Constraint("Tangent", 30, 2, 31, 2))
sketch2.addConstraint(Sketcher.Constraint("Tangent", 31, 1, 32, 1))
sketch2.addConstraint(Sketcher.Constraint("Tangent", 32, 2, 33, 2))
sketch2.addConstraint(Sketcher.Constraint("Tangent", 33, 1, 34, 1))
sketch2.addConstraint(Sketcher.Constraint("Tangent", 34, 2, 35, 2))
sketch2.addConstraint(Sketcher.Constraint("Tangent", 35, 1, 36, 1))
sketch2.addConstraint(Sketcher.Constraint("Tangent", 36, 2, 37, 2))
sketch2.addConstraint(Sketcher.Constraint("Tangent", 37, 1, 38, 1))
sketch2.addConstraint(Sketcher.Constraint("Coincident", 38, 2, 39, 1))
sketch2.addConstraint(Sketcher.Constraint("Tangent", 39, 2, 40, 1))
sketch2.addConstraint(Sketcher.Constraint("Tangent", 40, 2, 41, 1))
sketch2.addConstraint(Sketcher.Constraint("Tangent", 41, 2, 42, 1))
sketch2.addConstraint(Sketcher.Constraint("Tangent", 42, 2, 43, 1))
sketch2.addConstraint(Sketcher.Constraint("Tangent", 43, 2, 44, 1))
sketch2.addConstraint(Sketcher.Constraint("Tangent", 44, 2, 45, 1))
sketch2.addConstraint(Sketcher.Constraint("Coincident", 45, 2, 46, 1))
sketch2.addConstraint(Sketcher.Constraint("Tangent", 46, 2, 47, 2))
sketch2.addConstraint(Sketcher.Constraint("Tangent", 47, 1, 48, 1))
sketch2.addConstraint(Sketcher.Constraint("Tangent", 48, 2, 49, 2))
sketch2.addConstraint(Sketcher.Constraint("Tangent", 49, 1, 50, 1))
sketch2.addConstraint(Sketcher.Constraint("Tangent", 50, 2, 51, 2))
sketch2.addConstraint(Sketcher.Constraint("Tangent", 51, 1, 52, 1))
sketch2.addConstraint(Sketcher.Constraint("Tangent", 52, 2, 53, 2))
sketch2.addConstraint(Sketcher.Constraint("Tangent", 53, 1, 54, 1))
sketch2.addConstraint(Sketcher.Constraint("Coincident", 54, 2, 55, 1))
sketch2.addConstraint(Sketcher.Constraint("Tangent", 55, 2, 56, 1))
sketch2.addConstraint(Sketcher.Constraint("Tangent", 56, 2, 57, 1))
sketch2.addConstraint(Sketcher.Constraint("Tangent", 57, 2, 58, 1))
sketch2.addConstraint(Sketcher.Constraint("Tangent", 58, 2, 59, 1))
sketch2.addConstraint(Sketcher.Constraint("Tangent", 59, 2, 60, 1))
sketch2.addConstraint(Sketcher.Constraint("Tangent", 60, 2, 61, 1))
sketch2.addConstraint(Sketcher.Constraint("Coincident", 61, 2, 62, 1))
sketch2.addConstraint(Sketcher.Constraint("Tangent", 62, 2, 63, 2))
sketch2.addConstraint(Sketcher.Constraint("Tangent", 63, 1, 0, 1))
sketch2.addConstraint(Sketcher.Constraint("Horizontal", 2))
sketch2.addConstraint(Sketcher.Constraint("Horizontal", 6))
sketch2.addConstraint(Sketcher.Constraint("Vertical", 7))
sketch2.addConstraint(Sketcher.Constraint("Horizontal", 9))
sketch2.addConstraint(Sketcher.Constraint("Vertical", 11))
sketch2.addConstraint(Sketcher.Constraint("Horizontal", 13))
sketch2.addConstraint(Sketcher.Constraint("Vertical", 14))
sketch2.addConstraint(Sketcher.Constraint("Vertical", 18))
sketch2.addConstraint(Sketcher.Constraint("Vertical", 22))
sketch2.addConstraint(Sketcher.Constraint("Horizontal", 23))
sketch2.addConstraint(Sketcher.Constraint("Vertical", 25))
sketch2.addConstraint(Sketcher.Constraint("Horizontal", 27))
sketch2.addConstraint(Sketcher.Constraint("Vertical", 29))
sketch2.addConstraint(Sketcher.Constraint("Horizontal", 30))
sketch2.addConstraint(Sketcher.Constraint("Horizontal", 34))
sketch2.addConstraint(Sketcher.Constraint("Horizontal", 38))
sketch2.addConstraint(Sketcher.Constraint("Vertical", 39))
sketch2.addConstraint(Sketcher.Constraint("Horizontal", 41))
sketch2.addConstraint(Sketcher.Constraint("Vertical", 43))
sketch2.addConstraint(Sketcher.Constraint("Horizontal", 45))
sketch2.addConstraint(Sketcher.Constraint("Vertical", 46))
sketch2.addConstraint(Sketcher.Constraint("Vertical", 50))
sketch2.addConstraint(Sketcher.Constraint("Vertical", 54))
sketch2.addConstraint(Sketcher.Constraint("Horizontal", 55))
sketch2.addConstraint(Sketcher.Constraint("Vertical", 57))
sketch2.addConstraint(Sketcher.Constraint("Horizontal", 59))
sketch2.addConstraint(Sketcher.Constraint("Vertical", 61))
sketch2.addConstraint(Sketcher.Constraint("Horizontal", 62))
sketch2.addConstraint(Sketcher.Constraint("Equal", 1, 3))
sketch2.addConstraint(Sketcher.Constraint("Equal", 5, 8))
sketch2.addConstraint(Sketcher.Constraint("Equal", 8, 12))
sketch2.addConstraint(Sketcher.Constraint("Equal", 12, 15))
sketch2.addConstraint(Sketcher.Constraint("Equal", 3, 17))
sketch2.addConstraint(Sketcher.Constraint("Equal", 17, 19))
sketch2.addConstraint(Sketcher.Constraint("Equal", 15, 21))
sketch2.addConstraint(Sketcher.Constraint("Equal", 21, 24))
sketch2.addConstraint(Sketcher.Constraint("Equal", 10, 26))
sketch2.addConstraint(Sketcher.Constraint("Equal", 24, 28))
sketch2.addConstraint(Sketcher.Constraint("Equal", 28, 31))
sketch2.addConstraint(Sketcher.Constraint("Equal", 19, 33))
sketch2.addConstraint(Sketcher.Constraint("Equal", 33, 35))
sketch2.addConstraint(Sketcher.Constraint("Equal", 31, 37))
sketch2.addConstraint(Sketcher.Constraint("Equal", 37, 40))
sketch2.addConstraint(Sketcher.Constraint("Equal", 26, 42))
sketch2.addConstraint(Sketcher.Constraint("Equal", 40, 44))
sketch2.addConstraint(Sketcher.Constraint("Equal", 44, 47))
sketch2.addConstraint(Sketcher.Constraint("Equal", 35, 49))
sketch2.addConstraint(Sketcher.Constraint("Equal", 49, 51))
sketch2.addConstraint(Sketcher.Constraint("Equal", 47, 53))
sketch2.addConstraint(Sketcher.Constraint("Equal", 53, 56))
sketch2.addConstraint(Sketcher.Constraint("Equal", 42, 58))
sketch2.addConstraint(Sketcher.Constraint("Equal", 56, 60))
sketch2.addConstraint(Sketcher.Constraint("Equal", 60, 63))
sketch2.addConstraint(Sketcher.Constraint("Symmetric", 1, 3, 33, 3, -1, 1))
sketch2.addConstraint(Sketcher.Constraint("Symmetric", 5, 3, 37, 3, -1, 1))
sketch2.addConstraint(Sketcher.Constraint("Symmetric", 8, 3, 40, 3, -1, 1))
sketch2.addConstraint(Sketcher.Constraint("Symmetric", 12, 3, 44, 3, -1, 1))
sketch2.addConstraint(Sketcher.Constraint("Symmetric", 15, 3, 47, 3, -1, 1))
sketch2.addConstraint(Sketcher.Constraint("Symmetric", 17, 3, 49, 3, -1, 1))
sketch2.addConstraint(Sketcher.Constraint("Symmetric", 21, 3, 53, 3, -1, 1))
sketch2.addConstraint(Sketcher.Constraint("Symmetric", 24, 3, 56, 3, -1, 1))
sketch2.addConstraint(Sketcher.Constraint("Symmetric", 28, 3, 60, 3, -1, 1))
sketch2.addConstraint(Sketcher.Constraint("Symmetric", 31, 3, 63, 3, -1, 1))
sketch2.addConstraint(Sketcher.Constraint("Symmetric", 31, 3, 37, 3, -2))
sketch2.addConstraint(Sketcher.Constraint("Symmetric", 28, 3, 40, 3, -2))
sketch2.addConstraint(Sketcher.Constraint("Symmetric", 24, 3, 44, 3, -2))
sketch2.addConstraint(Sketcher.Constraint("Symmetric", 21, 3, 47, 3, -2))
sketch2.addConstraint(Sketcher.Constraint("Perpendicular", 0, 4))
sketch2.addConstraint(Sketcher.Constraint("Parallel", 4, 16))
sketch2.addConstraint(Sketcher.Constraint("Perpendicular", 16, 20))
sketch2.addConstraint(Sketcher.Constraint("Perpendicular", 32, 36))
sketch2.addConstraint(Sketcher.Constraint("Perpendicular", 48, 52))
sketch2.addConstraint(Sketcher.Constraint("Horizontal", 19, 3, 49, 3))
sketch2.addConstraint(Sketcher.Constraint("Equal", 55, 7))
sketch2.addConstraint(Sketcher.Constraint("Equal", 59, 11))
sketch2.addConstraint(Sketcher.Constraint("Equal", 62, 14))
sketch2.addConstraint(Sketcher.Constraint("Equal", 34, 18))
sketch2.addConstraint(Sketcher.Constraint("Equal", 4, 16))
sketch2.addConstraint(Sketcher.Constraint("Radius", 1, Q("1.5 mm")))
sketch2.addConstraint(Sketcher.Constraint("Radius", 5, Q("0.3 mm")))
sketch2.addConstraint(Sketcher.Constraint("Radius", 10, Q("0.5 mm")))
sketch2.addConstraint(Sketcher.Constraint("DistanceX", 13, 2, 13, 1, Q("1 mm")))
sketch2.addConstraint(Sketcher.Constraint("DistanceY", 1, 1, -1, 1, Q("4 mm")))
sketch2.addConstraint(Sketcher.Constraint("DistanceY", 8, 2, -1, 1, Q("10 mm")))
sketch2.addConstraint(Sketcher.Constraint("DistanceX", 9, 1, 9, 2, Q("6.15 mm")))
sketch2.addConstraint(Sketcher.Constraint("DistanceX", 2, 1, 2, 2, Q("4.918882 mm")))
pad2 = body2.newObject("PartDesign::Pad", "Pad001")
pad2.Profile = sketch2
pad2.Length = 160

doc.recompute()
